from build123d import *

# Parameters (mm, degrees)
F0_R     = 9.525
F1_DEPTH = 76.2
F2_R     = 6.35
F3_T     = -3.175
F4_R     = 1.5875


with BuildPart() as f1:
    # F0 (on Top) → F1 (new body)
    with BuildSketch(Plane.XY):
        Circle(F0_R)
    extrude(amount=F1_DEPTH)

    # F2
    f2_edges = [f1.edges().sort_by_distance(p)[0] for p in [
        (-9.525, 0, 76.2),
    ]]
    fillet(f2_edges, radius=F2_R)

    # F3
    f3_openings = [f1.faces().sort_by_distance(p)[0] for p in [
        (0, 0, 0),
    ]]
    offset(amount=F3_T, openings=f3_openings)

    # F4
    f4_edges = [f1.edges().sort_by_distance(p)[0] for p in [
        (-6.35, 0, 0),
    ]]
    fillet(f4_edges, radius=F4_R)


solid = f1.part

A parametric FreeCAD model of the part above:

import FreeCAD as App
import Part
import Sketcher
from FreeCAD import Vector
Q = App.Units.Quantity


def edges_at(feature, points):
    """Names of the edges that pass closest to the given points."""
    edges = feature.Shape.Edges
    near = lambda p: min(range(len(edges)), key=lambda i: edges[i].distToShape(Part.Vertex(*p))[0])
    return sorted({f"Edge{near(p) + 1}" for p in points})


def faces_at(feature, points):
    """Names of the faces that lie closest to the given points."""
    faces = feature.Shape.Faces
    near = lambda p: min(range(len(faces)), key=lambda i: faces[i].distToShape(Part.Vertex(*p))[0])
    return sorted({f"Face{near(p) + 1}" for p in points})

doc = App.newDocument("Part")
params = doc.addObject("Spreadsheet::Sheet", "Params")
for row, (alias, value) in enumerate([
    ("sketch1_diameter", "0.75 in"),
    ("pad1_length", "3 in"),
    ("fillet_radius", "0.25 in"),
    ("thickness_wall", "0.125 in"),
    ("fillet2_radius", "0.0625 in"),
], start=1):
    params.set(f"A{row}", alias)
    params.set(f"B{row}", "=" + value)
    params.setAlias(f"B{row}", alias)

body = doc.addObject("PartDesign::Body", "Body")

# Sketch on XY plane
sketch1 = doc.addObject("Sketcher::SketchObject", "Sketch")
body.addObject(sketch1)
sketch1.AttachmentSupport = (doc.XY_Plane, [""])
sketch1.MapMode = "FlatFace"
sketch1.addGeometry(Part.Circle(Vector(0, 0, 0), Vector(0, 0, 1), 10), False)
sketch1.addConstraint([
    Sketcher.Constraint("Coincident", 0, 3, -1, 1),
    Sketcher.Constraint("Diameter", 0, Q("0.75 in")),
])
sketch1.setExpression("Constraints[1]", "Params.sketch1_diameter")
pad1 = doc.addObject("PartDesign::Pad", "Pad")
body.addObject(pad1)
pad1.Profile = sketch1
pad1.setExpression("Length", "Params.pad1_length")
doc.recompute()

fillet = doc.addObject("PartDesign::Fillet", "Fillet")
body.addObject(fillet)
fillet.Base = (pad1, edges_at(pad1, [(-9.525, 0, 76.2)]))
fillet.setExpression("Radius", "Params.fillet_radius")
doc.recompute()

thickness = doc.addObject("PartDesign::Thickness", "Thickness")
body.addObject(thickness)
thickness.Base = (fillet, faces_at(fillet, [(0, 0, 0)]))
thickness.setExpression("Value", "Params.thickness_wall")
thickness.Reversed = True
thickness.Join = "Arc"
doc.recompute()

fillet2 = doc.addObject("PartDesign::Fillet", "Fillet001")
body.addObject(fillet2)
fillet2.Base = (thickness, edges_at(thickness, [(-6.35, 0, 0)]))
fillet2.setExpression("Radius", "Params.fillet2_radius")

doc.recompute()
